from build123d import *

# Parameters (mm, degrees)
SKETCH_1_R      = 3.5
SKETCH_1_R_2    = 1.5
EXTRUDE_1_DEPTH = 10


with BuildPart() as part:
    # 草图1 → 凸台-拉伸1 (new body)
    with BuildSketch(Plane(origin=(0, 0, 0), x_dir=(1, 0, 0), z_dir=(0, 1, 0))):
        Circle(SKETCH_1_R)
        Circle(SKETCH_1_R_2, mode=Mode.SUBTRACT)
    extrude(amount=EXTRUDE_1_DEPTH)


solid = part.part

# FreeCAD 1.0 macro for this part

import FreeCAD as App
import Part
import Sketcher

V = App.Vector

doc = App.newDocument("Part")
params = doc.addObject("Spreadsheet::Sheet", "Params")
for row, (alias, value) in enumerate([
    ("sketch1_diameter", "7 mm"),
    ("sketch1_diameter2", "3 mm"),
    ("pad1_length", "10 mm"),
], start=1):
    params.set(f"A{row}", alias)
    params.set(f"B{row}", "=" + value)
    params.setAlias(f"B{row}", alias)

body = doc.addObject("PartDesign::Body", "Body")

# Sketch on XZ plane
sketch1 = body.newObject("Sketcher::SketchObject", "Sketch")
sketch1.AttachmentSupport = (doc.getObject("XZ_Plane"), [""])
sketch1.MapMode = "FlatFace"
sketch1.addGeometry([
    Part.Circle(V(0, 0, 0), V(0, 0, 1), 3.5),
    Part.Circle(V(0, 0, 0), V(0, 0, 1), 1.5),
], False)
sketch1.addConstraint([
    Sketcher.Constraint("Coincident", 0, 3, -1, 1),
    Sketcher.Constraint("Coincident", 1, 3, -1, 1),
    Sketcher.Constraint("Diameter", 0, 7.0),
    Sketcher.Constraint("Diameter", 1, 3.0),
])
sketch1.setExpression("Constraints[2]", "Params.sketch1_diameter")
sketch1.setExpression("Constraints[3]", "Params.sketch1_diameter2")
pad1 = body.newObject("PartDesign::Pad", "Pad")
pad1.Profile = sketch1
pad1.setExpression("Length", "Params.pad1_length")
pad1.Reversed = True

doc.recompute()
